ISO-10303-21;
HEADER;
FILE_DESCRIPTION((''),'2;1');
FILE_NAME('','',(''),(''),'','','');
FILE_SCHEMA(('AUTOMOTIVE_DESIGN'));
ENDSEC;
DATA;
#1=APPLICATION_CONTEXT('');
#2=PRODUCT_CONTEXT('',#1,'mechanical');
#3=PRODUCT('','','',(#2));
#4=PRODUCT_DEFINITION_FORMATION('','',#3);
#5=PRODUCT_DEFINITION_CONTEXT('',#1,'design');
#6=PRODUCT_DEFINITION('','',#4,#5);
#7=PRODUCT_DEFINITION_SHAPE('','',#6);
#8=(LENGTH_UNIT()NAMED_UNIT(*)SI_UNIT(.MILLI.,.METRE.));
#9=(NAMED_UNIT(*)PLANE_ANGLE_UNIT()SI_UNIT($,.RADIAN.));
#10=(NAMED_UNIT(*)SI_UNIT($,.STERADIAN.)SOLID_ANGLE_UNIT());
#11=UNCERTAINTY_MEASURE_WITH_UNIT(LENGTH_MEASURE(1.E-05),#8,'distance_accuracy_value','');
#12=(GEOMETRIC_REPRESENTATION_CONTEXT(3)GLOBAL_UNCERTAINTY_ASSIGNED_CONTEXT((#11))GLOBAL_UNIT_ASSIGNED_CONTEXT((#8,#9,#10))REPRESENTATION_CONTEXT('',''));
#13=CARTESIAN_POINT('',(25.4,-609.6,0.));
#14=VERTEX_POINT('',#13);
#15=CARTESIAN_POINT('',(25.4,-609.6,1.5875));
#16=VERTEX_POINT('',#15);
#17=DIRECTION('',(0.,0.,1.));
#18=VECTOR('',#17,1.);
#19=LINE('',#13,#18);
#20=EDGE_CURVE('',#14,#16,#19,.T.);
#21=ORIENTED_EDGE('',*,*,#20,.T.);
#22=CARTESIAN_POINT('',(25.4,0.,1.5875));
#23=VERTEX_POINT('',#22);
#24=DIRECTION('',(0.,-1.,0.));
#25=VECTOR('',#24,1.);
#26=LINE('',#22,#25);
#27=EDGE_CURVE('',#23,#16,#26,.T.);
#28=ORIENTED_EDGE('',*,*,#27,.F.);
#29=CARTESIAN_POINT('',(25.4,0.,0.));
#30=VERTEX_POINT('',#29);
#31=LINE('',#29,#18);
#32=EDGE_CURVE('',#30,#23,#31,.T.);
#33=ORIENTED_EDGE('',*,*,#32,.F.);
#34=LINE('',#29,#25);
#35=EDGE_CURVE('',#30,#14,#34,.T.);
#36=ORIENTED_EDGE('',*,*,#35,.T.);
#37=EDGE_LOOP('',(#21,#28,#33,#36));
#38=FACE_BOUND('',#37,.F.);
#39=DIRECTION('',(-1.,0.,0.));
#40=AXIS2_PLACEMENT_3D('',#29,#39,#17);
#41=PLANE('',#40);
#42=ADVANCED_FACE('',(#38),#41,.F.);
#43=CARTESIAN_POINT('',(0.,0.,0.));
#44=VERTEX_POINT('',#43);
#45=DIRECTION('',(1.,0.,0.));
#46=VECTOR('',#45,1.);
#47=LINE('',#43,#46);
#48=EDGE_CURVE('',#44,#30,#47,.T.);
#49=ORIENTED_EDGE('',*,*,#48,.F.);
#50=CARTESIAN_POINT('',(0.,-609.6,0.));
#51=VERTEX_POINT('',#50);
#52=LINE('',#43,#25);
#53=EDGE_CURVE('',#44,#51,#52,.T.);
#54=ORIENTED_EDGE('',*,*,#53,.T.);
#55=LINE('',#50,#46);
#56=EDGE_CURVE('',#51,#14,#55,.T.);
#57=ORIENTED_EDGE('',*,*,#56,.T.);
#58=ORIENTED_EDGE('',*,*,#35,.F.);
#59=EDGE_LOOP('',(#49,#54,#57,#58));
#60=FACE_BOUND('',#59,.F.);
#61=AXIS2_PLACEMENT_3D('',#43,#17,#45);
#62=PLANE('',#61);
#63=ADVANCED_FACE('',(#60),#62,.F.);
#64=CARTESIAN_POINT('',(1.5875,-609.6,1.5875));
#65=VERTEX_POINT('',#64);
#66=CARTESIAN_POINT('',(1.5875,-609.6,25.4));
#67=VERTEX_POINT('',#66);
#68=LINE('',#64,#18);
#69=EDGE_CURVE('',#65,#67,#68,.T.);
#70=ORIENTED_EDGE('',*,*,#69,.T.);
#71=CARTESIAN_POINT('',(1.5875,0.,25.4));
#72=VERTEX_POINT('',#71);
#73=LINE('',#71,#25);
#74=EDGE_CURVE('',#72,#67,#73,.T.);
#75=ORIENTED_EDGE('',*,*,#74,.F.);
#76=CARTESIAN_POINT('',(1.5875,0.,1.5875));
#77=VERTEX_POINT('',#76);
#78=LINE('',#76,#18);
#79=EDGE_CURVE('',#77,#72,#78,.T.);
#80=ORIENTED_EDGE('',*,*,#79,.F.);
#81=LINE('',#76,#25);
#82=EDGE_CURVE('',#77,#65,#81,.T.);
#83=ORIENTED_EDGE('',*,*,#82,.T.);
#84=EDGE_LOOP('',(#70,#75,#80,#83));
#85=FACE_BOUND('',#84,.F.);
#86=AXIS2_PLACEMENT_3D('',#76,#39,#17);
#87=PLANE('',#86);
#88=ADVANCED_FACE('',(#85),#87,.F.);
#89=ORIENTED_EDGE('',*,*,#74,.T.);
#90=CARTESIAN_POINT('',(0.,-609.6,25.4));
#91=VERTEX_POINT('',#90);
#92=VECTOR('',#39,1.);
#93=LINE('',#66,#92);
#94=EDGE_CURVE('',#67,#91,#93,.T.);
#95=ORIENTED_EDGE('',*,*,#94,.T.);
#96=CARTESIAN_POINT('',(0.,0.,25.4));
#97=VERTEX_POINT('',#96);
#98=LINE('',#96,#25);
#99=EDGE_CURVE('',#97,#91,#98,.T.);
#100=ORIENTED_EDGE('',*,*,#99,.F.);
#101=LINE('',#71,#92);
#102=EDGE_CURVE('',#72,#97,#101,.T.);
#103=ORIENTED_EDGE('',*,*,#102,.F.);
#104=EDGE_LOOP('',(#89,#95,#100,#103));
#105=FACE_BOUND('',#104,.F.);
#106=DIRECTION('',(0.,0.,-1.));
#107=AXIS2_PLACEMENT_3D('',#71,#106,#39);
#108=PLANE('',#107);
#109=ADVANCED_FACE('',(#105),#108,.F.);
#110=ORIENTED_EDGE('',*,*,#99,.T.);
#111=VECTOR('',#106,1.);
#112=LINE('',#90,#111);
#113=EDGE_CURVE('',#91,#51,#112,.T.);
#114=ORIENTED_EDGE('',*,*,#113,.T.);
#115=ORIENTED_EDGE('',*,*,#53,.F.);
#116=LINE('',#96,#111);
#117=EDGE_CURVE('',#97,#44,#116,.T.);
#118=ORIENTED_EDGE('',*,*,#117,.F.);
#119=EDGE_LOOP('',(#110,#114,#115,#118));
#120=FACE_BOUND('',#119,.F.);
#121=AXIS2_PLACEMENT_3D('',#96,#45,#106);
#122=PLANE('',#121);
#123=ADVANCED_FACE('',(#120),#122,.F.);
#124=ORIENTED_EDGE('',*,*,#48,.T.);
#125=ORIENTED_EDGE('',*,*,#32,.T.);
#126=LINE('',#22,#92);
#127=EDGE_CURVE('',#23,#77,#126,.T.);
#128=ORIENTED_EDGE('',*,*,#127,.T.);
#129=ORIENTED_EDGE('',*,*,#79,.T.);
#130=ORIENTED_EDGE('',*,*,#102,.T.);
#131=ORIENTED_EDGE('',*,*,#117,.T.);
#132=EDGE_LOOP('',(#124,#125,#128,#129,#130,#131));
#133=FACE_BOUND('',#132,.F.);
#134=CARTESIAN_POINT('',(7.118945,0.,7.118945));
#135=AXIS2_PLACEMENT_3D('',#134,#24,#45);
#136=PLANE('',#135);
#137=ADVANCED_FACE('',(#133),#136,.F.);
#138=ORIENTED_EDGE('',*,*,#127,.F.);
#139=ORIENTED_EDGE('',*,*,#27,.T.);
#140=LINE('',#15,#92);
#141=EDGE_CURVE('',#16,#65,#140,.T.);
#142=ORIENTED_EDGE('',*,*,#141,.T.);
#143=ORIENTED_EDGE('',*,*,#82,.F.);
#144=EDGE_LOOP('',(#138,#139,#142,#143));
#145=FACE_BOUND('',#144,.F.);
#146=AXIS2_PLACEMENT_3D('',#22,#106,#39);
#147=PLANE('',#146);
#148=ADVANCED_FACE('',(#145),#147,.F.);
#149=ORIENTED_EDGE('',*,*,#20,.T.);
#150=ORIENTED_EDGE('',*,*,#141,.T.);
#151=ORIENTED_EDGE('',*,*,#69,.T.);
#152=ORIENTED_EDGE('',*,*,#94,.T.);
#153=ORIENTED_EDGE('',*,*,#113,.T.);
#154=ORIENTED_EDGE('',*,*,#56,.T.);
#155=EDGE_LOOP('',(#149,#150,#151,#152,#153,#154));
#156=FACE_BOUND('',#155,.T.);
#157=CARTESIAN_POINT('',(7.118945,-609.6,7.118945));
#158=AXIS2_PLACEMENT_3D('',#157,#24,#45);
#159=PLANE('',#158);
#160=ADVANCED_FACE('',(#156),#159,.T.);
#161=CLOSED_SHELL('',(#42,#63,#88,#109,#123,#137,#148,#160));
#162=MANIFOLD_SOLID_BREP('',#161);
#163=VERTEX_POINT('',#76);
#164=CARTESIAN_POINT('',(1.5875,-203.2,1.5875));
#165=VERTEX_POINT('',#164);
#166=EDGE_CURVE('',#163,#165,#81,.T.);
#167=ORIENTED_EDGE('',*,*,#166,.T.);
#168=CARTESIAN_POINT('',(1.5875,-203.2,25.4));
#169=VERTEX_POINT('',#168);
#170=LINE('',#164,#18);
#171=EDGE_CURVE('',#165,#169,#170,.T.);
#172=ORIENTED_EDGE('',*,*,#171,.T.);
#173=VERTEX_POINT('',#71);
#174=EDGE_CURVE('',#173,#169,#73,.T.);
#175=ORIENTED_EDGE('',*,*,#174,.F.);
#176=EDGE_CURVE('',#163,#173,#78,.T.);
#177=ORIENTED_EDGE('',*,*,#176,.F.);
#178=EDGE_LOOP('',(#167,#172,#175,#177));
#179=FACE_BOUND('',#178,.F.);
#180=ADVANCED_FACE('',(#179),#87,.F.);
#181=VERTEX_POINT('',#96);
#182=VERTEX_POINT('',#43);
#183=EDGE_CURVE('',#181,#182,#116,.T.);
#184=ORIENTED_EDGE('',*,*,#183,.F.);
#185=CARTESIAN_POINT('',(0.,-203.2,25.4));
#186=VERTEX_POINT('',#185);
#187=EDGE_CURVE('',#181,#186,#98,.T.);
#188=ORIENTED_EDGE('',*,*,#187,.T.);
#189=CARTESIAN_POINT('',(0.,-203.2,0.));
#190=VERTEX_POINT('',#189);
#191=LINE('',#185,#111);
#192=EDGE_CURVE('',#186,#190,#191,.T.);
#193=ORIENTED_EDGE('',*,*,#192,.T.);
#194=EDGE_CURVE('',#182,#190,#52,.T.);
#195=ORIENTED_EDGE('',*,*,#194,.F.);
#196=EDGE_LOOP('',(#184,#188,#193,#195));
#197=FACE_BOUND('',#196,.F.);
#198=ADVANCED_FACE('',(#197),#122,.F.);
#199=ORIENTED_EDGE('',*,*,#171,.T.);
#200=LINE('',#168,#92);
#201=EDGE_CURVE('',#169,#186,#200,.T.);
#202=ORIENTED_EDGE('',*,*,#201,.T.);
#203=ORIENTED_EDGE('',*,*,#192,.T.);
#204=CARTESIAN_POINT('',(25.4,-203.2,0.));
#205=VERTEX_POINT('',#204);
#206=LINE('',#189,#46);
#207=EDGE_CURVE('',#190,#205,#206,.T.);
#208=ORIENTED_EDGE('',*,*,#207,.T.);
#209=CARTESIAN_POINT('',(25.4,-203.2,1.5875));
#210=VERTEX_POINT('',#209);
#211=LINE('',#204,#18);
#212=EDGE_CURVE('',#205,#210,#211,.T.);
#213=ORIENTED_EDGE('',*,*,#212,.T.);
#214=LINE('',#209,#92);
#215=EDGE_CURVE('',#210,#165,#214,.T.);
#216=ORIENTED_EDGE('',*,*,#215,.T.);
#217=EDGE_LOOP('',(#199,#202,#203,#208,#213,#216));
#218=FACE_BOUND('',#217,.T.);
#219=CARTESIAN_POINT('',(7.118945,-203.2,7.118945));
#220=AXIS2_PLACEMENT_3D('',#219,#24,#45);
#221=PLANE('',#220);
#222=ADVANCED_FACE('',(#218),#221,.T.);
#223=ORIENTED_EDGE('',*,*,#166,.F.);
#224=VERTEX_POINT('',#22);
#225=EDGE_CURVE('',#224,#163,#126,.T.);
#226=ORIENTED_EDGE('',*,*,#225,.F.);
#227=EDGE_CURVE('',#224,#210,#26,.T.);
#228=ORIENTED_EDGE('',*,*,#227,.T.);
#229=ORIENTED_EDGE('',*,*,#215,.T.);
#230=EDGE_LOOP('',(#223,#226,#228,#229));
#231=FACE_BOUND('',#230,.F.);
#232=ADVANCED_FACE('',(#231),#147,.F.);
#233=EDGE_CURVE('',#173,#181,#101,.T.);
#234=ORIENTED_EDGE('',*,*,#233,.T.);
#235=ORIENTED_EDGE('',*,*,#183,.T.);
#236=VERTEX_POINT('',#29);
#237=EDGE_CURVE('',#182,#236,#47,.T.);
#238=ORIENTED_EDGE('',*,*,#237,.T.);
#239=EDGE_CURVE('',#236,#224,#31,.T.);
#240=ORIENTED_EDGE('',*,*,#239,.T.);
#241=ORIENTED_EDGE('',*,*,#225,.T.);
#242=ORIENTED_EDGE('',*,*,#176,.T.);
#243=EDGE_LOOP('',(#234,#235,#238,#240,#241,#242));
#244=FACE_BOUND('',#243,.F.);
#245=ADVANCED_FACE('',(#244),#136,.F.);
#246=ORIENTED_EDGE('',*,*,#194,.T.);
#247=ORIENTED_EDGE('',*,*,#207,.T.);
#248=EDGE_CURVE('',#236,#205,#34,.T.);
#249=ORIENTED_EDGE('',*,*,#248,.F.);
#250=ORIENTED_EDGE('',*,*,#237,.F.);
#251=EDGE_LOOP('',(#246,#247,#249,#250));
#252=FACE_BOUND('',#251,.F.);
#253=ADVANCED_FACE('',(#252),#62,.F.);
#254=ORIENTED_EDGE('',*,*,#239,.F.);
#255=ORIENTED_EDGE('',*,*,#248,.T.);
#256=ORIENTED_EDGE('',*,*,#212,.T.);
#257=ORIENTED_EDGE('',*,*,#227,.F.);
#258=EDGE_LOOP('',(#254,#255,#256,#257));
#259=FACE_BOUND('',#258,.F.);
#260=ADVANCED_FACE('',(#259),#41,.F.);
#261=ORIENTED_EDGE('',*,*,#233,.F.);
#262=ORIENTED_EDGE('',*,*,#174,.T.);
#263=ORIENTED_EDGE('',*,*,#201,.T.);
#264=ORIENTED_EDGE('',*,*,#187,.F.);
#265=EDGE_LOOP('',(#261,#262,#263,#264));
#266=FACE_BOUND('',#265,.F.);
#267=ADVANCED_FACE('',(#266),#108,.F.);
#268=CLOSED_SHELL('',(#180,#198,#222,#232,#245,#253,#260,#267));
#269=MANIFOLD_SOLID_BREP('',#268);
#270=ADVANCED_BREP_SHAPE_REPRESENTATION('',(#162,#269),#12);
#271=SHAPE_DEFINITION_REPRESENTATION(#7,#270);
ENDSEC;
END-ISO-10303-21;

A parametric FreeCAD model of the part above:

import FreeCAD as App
import Part
import Sketcher

V = App.Vector
Q = App.Units.Quantity

doc = App.newDocument("Part")
body = doc.addObject("PartDesign::Body", "Body")

sketch1 = body.newObject("Sketcher::SketchObject", "Sketch")
sketch1.AttachmentSupport = (doc.getObject("XZ_Plane"), [""])
sketch1.MapMode = "FlatFace"
sketch1.addGeometry([
    Part.LineSegment(V(0, 25.4, 0), V(0, 0, 0)),
    Part.LineSegment(V(0, 0, 0), V(25.4, 0, 0)),
    Part.LineSegment(V(25.4, 0, 0), V(25.4, 1.6, 0)),
    Part.LineSegment(V(25.4, 1.6, 0), V(1.6, 1.6, 0)),
    Part.LineSegment(V(1.6, 1.6, 0), V(1.6, 25.4, 0)),
    Part.LineSegment(V(1.6, 25.4, 0), V(0, 25.4, 0)),
], False)
sketch1.addConstraint([
    Sketcher.Constraint("Coincident", 0, 2, 1, 1),
    Sketcher.Constraint("Coincident", 1, 2, 2, 1),
    Sketcher.Constraint("Coincident", 2, 2, 3, 1),
    Sketcher.Constraint("Coincident", 3, 2, 4, 1),
    Sketcher.Constraint("Coincident", 4, 2, 5, 1),
    Sketcher.Constraint("Coincident", 5, 2, 0, 1),
    Sketcher.Constraint("Vertical", 0),
    Sketcher.Constraint("Horizontal", 1),
    Sketcher.Constraint("Vertical", 2),
    Sketcher.Constraint("Horizontal", 3),
    Sketcher.Constraint("Vertical", 4),
    Sketcher.Constraint("Horizontal", 5),
    Sketcher.Constraint("Coincident", 0, 2, -1, 1),
    Sketcher.Constraint("Equal", 1, 0),
    Sketcher.Constraint("Equal", 5, 2),
    Sketcher.Constraint("DistanceX", 1, 1, 1, 2, Q("1 in")),
    Sketcher.Constraint("DistanceX", 3, 2, 3, 1, Q("0.9375 in")),
])
pad1 = body.newObject("PartDesign::Pad", "Pad")
pad1.Profile = sketch1
pad1.Length = Q("8 in")
body2 = doc.addObject("PartDesign::Body", "Body001")

sketch2 = body2.newObject("Sketcher::SketchObject", "Sketch001")
sketch2.AttachmentSupport = (doc.getObject("XZ_Plane001"), [""])
sketch2.MapMode = "FlatFace"
sketch2.addGeometry([
    Part.LineSegment(V(0, 25.4, 0), V(0, 0, 0)),
    Part.LineSegment(V(0, 0, 0), V(25.4, 0, 0)),
    Part.LineSegment(V(25.4, 0, 0), V(25.4, 1.6, 0)),
    Part.LineSegment(V(25.4, 1.6, 0), V(1.6, 1.6, 0)),
    Part.LineSegment(V(1.6, 1.6, 0), V(1.6, 25.4, 0)),
    Part.LineSegment(V(1.6, 25.4, 0), V(0, 25.4, 0)),
], False)
sketch2.addConstraint([
    Sketcher.Constraint("Coincident", 0, 2, 1, 1),
    Sketcher.Constraint("Coincident", 1, 2, 2, 1),
    Sketcher.Constraint("Coincident", 2, 2, 3, 1),
    Sketcher.Constraint("Coincident", 3, 2, 4, 1),
    Sketcher.Constraint("Coincident", 4, 2, 5, 1),
    Sketcher.Constraint("Coincident", 5, 2, 0, 1),
    Sketcher.Constraint("Vertical", 0),
    Sketcher.Constraint("Horizontal", 1),
    Sketcher.Constraint("Vertical", 2),
    Sketcher.Constraint("Horizontal", 3),
    Sketcher.Constraint("Vertical", 4),
    Sketcher.Constraint("Horizontal", 5),
    Sketcher.Constraint("Coincident", 0, 2, -1, 1),
    Sketcher.Constraint("Equal", 1, 0),
    Sketcher.Constraint("Equal", 5, 2),
    Sketcher.Constraint("DistanceX", 1, 1, 1, 2, Q("1 in")),
    Sketcher.Constraint("DistanceX", 3, 2, 3, 1, Q("0.9375 in")),
])
pad2 = body2.newObject("PartDesign::Pad", "Pad001")
pad2.Profile = sketch2
pad2.Length = Q("24 in")

doc.recompute()
